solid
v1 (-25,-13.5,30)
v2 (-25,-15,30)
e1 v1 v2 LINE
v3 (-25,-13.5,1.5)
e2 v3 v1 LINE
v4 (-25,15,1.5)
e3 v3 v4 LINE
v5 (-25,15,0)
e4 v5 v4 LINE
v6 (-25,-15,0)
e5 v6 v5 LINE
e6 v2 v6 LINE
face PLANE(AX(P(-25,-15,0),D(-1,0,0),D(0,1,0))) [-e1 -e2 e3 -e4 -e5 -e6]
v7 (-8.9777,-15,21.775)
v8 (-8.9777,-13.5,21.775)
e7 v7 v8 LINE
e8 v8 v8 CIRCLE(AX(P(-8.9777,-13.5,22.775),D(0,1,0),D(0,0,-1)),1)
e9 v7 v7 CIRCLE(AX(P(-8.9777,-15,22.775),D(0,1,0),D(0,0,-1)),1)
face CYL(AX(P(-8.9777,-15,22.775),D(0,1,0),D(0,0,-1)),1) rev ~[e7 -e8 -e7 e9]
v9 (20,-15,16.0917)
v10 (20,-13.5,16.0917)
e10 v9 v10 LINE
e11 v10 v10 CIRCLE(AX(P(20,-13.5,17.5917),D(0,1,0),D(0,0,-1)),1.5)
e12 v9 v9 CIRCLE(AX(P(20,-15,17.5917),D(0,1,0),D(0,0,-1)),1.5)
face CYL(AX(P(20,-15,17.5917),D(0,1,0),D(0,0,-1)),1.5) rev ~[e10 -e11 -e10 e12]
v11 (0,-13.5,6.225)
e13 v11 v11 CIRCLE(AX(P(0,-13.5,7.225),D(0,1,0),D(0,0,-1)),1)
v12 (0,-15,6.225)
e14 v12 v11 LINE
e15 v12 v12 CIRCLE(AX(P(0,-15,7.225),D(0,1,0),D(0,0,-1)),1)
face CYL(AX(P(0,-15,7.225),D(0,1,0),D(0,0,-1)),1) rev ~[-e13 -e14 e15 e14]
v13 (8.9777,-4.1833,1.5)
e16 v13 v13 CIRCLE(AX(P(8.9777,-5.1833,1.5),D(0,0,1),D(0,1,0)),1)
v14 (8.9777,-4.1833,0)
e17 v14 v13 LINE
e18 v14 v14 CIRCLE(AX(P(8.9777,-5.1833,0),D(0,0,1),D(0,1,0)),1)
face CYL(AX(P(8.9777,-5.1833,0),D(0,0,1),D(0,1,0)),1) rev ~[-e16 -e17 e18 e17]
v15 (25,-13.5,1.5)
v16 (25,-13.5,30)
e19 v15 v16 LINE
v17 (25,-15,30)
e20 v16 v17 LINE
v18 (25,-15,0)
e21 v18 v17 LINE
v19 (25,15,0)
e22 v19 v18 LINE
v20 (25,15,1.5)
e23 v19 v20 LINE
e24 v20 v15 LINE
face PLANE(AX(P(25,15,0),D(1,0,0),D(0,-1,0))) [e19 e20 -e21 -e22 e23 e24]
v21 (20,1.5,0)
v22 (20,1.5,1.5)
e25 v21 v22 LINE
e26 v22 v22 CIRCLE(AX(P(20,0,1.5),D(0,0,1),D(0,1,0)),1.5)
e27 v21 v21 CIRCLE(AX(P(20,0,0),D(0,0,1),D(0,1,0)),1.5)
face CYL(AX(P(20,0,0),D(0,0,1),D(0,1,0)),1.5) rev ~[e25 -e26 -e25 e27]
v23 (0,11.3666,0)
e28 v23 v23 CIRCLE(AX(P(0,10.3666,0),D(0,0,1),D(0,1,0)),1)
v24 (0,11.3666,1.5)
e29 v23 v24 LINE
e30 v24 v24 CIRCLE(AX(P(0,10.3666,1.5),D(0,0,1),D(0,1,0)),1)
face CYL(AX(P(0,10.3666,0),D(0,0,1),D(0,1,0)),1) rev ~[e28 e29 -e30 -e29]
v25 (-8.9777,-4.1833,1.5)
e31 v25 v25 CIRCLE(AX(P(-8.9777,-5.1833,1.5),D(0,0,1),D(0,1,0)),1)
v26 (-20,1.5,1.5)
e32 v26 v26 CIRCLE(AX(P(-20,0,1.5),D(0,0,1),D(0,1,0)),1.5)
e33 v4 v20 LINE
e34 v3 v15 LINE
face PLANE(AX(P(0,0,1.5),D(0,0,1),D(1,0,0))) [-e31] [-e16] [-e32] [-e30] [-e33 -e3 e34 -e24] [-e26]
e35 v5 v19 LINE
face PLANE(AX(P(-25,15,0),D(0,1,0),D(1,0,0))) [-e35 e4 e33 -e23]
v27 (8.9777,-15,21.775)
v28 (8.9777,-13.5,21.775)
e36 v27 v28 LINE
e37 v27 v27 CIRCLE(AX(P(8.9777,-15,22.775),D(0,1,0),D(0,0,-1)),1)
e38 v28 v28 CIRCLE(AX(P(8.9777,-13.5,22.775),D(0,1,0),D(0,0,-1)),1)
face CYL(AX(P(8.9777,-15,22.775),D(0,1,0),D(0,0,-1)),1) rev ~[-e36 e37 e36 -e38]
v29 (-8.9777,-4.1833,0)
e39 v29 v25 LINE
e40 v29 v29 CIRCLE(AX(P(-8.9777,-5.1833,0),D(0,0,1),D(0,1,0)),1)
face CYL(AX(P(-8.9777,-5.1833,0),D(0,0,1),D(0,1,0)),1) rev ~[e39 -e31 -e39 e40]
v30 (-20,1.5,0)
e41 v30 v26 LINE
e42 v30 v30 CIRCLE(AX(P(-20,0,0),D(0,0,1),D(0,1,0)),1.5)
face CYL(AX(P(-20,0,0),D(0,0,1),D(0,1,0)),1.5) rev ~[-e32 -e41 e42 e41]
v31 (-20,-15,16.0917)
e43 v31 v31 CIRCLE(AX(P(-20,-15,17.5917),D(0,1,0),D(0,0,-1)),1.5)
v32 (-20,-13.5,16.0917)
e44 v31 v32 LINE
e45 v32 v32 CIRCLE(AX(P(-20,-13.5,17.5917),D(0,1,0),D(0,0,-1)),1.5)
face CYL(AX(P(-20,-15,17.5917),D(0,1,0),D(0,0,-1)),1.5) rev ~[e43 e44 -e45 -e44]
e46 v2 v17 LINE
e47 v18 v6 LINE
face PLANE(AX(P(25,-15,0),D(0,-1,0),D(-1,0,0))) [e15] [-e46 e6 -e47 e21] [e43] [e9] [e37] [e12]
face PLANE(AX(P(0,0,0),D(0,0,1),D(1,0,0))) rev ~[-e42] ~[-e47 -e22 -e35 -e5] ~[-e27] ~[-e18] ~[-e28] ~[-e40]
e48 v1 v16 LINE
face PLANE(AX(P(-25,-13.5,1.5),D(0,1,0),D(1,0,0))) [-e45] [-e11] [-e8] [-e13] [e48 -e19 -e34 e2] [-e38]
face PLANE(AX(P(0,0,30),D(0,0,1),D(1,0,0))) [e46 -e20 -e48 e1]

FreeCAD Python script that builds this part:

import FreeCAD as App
import Part
import Sketcher
Q = App.Units.Quantity

doc = App.newDocument("Part")
body = doc.addObject("PartDesign::Body", "Body")

sketch1 = doc.addObject("Sketcher::SketchObject", "Sketch")
body.addObject(sketch1)
sketch1.AttachmentSupport = (doc.XY_Plane, [""])
sketch1.MapMode = "FlatFace"
sketch1.addGeometry([
    Part.LineSegment(App.Vector(-25, -15, 0), App.Vector(25, -15, 0)),
    Part.LineSegment(App.Vector(25, -15, 0), App.Vector(25, 15, 0)),
    Part.LineSegment(App.Vector(25, 15, 0), App.Vector(-25, 15, 0)),
    Part.LineSegment(App.Vector(-25, 15, 0), App.Vector(-25, -15, 0)),
], False)
sketch1.addConstraint([
    Sketcher.Constraint("Coincident", 0, 2, 1, 1),
    Sketcher.Constraint("Coincident", 1, 2, 2, 1),
    Sketcher.Constraint("Coincident", 2, 2, 3, 1),
    Sketcher.Constraint("Coincident", 3, 2, 0, 1),
    Sketcher.Constraint("Horizontal", 0),
    Sketcher.Constraint("Vertical", 1),
    Sketcher.Constraint("Horizontal", 2),
    Sketcher.Constraint("Vertical", 3),
    Sketcher.Constraint("Symmetric", 0, 2, 2, 2, -1, 1),
    Sketcher.Constraint("DistanceX", 0, 1, 0, 2, Q("50 mm")),
    Sketcher.Constraint("DistanceY", 1, 1, 1, 2, Q("30 mm")),
])
pad1 = doc.addObject("PartDesign::Pad", "Pad")
body.addObject(pad1)
pad1.Profile = sketch1
pad1.Length = 1.5

sketch2 = doc.addObject("Sketcher::SketchObject", "Sketch001")
body.addObject(sketch2)
sketch2.AttachmentSupport = (doc.XY_Plane, [""])
sketch2.MapMode = "FlatFace"
sketch2.AttachmentOffset = App.Placement(App.Vector(0, 0, 1.5), App.Rotation())
sketch2.addGeometry([
    Part.LineSegment(App.Vector(-25, -13.5, 0), App.Vector(-25, -15, 0)),
    Part.LineSegment(App.Vector(-25, -15, 0), App.Vector(25, -15, 0)),
    Part.LineSegment(App.Vector(25, -15, 0), App.Vector(25, -13.5, 0)),
    Part.LineSegment(App.Vector(25, -13.5, 0), App.Vector(-25, -13.5, 0)),
], False)
sketch2.addConstraint([
    Sketcher.Constraint("Coincident", 0, 2, 1, 1),
    Sketcher.Constraint("Coincident", 1, 2, 2, 1),
    Sketcher.Constraint("Coincident", 2, 2, 3, 1),
    Sketcher.Constraint("Coincident", 3, 2, 0, 1),
    Sketcher.Constraint("Vertical", 0),
    Sketcher.Constraint("Horizontal", 1),
    Sketcher.Constraint("Vertical", 2),
    Sketcher.Constraint("Horizontal", 3),
    Sketcher.Constraint("DistanceY", 0, 2, 0, 1, Q("1.5 mm")),
    Sketcher.Constraint("DistanceX", 1, 1, 1, 2, Q("50 mm")),
    Sketcher.Constraint("DistanceX", 0, 2, -1, 1, Q("25 mm")),
    Sketcher.Constraint("DistanceY", 0, 2, -1, 1, Q("15 mm")),
])
pad2 = doc.addObject("PartDesign::Pad", "Pad001")
body.addObject(pad2)
pad2.Profile = sketch2
pad2.Length = 28.5

sketch3 = doc.addObject("Sketcher::SketchObject", "Sketch002")
body.addObject(sketch3)
sketch3.AttachmentSupport = (doc.XY_Plane, [""])
sketch3.MapMode = "FlatFace"
sketch3.addGeometry([
    Part.Circle(App.Vector(0, 10.4, 0), App.Vector(0, 0, 1), 1),
    Part.Circle(App.Vector(-9, -5.2, 0), App.Vector(0, 0, 1), 1),
    Part.Circle(App.Vector(9, -5.2, 0), App.Vector(0, 0, 1), 1),
], False)
sketch3.addConstraint([
    Sketcher.Constraint("Equal", 0, 1),
    Sketcher.Constraint("Equal", 1, 2),
    Sketcher.Constraint("Symmetric", 1, 3, 2, 3, -2),
    Sketcher.Constraint("PointOnObject", 0, 3, -2),
    Sketcher.Constraint("Diameter", 0, Q("2 mm")),
    Sketcher.Constraint("DistanceY", 1, 3, 0, 3, Q("15.55 mm")),
    Sketcher.Constraint("DistanceY", -1, 1, 0, 3, Q("10.3666 mm")),
    Sketcher.Constraint("DistanceX", 1, 3, -1, 1, Q("8.9777 mm")),
])
doc.recompute()
hole = doc.addObject("PartDesign::Hole", "Hole")
body.addObject(hole)
hole.Profile = sketch3
hole.ThreadType = "None"
hole.Diameter = 2
hole.DepthType = "ThroughAll"
hole.Reversed = True

sketch4 = doc.addObject("Sketcher::SketchObject", "Sketch003")
body.addObject(sketch4)
sketch4.AttachmentSupport = (doc.XY_Plane, [""])
sketch4.MapMode = "FlatFace"
sketch4.addGeometry([
    Part.Circle(App.Vector(-20, 0, 0), App.Vector(0, 0, 1), 1.5),
    Part.Circle(App.Vector(20, 0, 0), App.Vector(0, 0, 1), 1.5),
], False)
sketch4.addConstraint([
    Sketcher.Constraint("Equal", 0, 1),
    Sketcher.Constraint("Symmetric", 0, 3, 1, 3, -1, 1),
    Sketcher.Constraint("PointOnObject", 0, 3, -1),
    Sketcher.Constraint("Diameter", 0, Q("3 mm")),
    Sketcher.Constraint("DistanceX", 0, 3, -1, 1, Q("20 mm")),
])
doc.recompute()
hole2 = doc.addObject("PartDesign::Hole", "Hole001")
body.addObject(hole2)
hole2.Profile = sketch4
hole2.ThreadType = "None"
hole2.Diameter = 3
hole2.DepthType = "ThroughAll"
hole2.Reversed = True

sketch5 = doc.addObject("Sketcher::SketchObject", "Sketch004")
body.addObject(sketch5)
sketch5.AttachmentSupport = (doc.XZ_Plane, [""])
sketch5.MapMode = "FlatFace"
sketch5.AttachmentOffset = App.Placement(App.Vector(0, 0, 15), App.Rotation())
sketch5.addGeometry([
    Part.Circle(App.Vector(0, 7.2, 0), App.Vector(0, 0, 1), 1),
    Part.Circle(App.Vector(-9, 22.8, 0), App.Vector(0, 0, 1), 1),
    Part.Circle(App.Vector(9, 22.8, 0), App.Vector(0, 0, 1), 1),
], False)
sketch5.addConstraint([
    Sketcher.Constraint("Equal", 0, 1),
    Sketcher.Constraint("Equal", 1, 2),
    Sketcher.Constraint("Symmetric", 1, 3, 2, 3, -2),
    Sketcher.Constraint("PointOnObject", 0, 3, -2),
    Sketcher.Constraint("Diameter", 0, Q("2 mm")),
    Sketcher.Constraint("DistanceY", 0, 3, 1, 3, Q("15.55 mm")),
    Sketcher.Constraint("DistanceY", -1, 1, 0, 3, Q("7.225 mm")),
    Sketcher.Constraint("DistanceX", 1, 3, -1, 1, Q("8.9777 mm")),
])
doc.recompute()
hole3 = doc.addObject("PartDesign::Hole", "Hole002")
body.addObject(hole3)
hole3.Profile = sketch5
hole3.ThreadType = "None"
hole3.Diameter = 2
hole3.DepthType = "ThroughAll"

sketch6 = doc.addObject("Sketcher::SketchObject", "Sketch005")
body.addObject(sketch6)
sketch6.AttachmentSupport = (doc.XZ_Plane, [""])
sketch6.MapMode = "FlatFace"
sketch6.AttachmentOffset = App.Placement(App.Vector(0, 0, 15), App.Rotation())
sketch6.addGeometry([
    Part.Circle(App.Vector(-20, 17.6, 0), App.Vector(0, 0, 1), 1.5),
    Part.Circle(App.Vector(20, 17.6, 0), App.Vector(0, 0, 1), 1.5),
], False)
sketch6.addConstraint([
    Sketcher.Constraint("Equal", 0, 1),
    Sketcher.Constraint("Symmetric", 0, 3, 1, 3, -2),
    Sketcher.Constraint("Diameter", 0, Q("3 mm")),
    Sketcher.Constraint("DistanceX", 0, 3, -1, 1, Q("20 mm")),
    Sketcher.Constraint("DistanceY", -1, 1, 0, 3, Q("17.5917 mm")),
])
doc.recompute()
hole4 = doc.addObject("PartDesign::Hole", "Hole003")
body.addObject(hole4)
hole4.Profile = sketch6
hole4.ThreadType = "None"
hole4.Diameter = 3
hole4.DepthType = "ThroughAll"

doc.recompute()
